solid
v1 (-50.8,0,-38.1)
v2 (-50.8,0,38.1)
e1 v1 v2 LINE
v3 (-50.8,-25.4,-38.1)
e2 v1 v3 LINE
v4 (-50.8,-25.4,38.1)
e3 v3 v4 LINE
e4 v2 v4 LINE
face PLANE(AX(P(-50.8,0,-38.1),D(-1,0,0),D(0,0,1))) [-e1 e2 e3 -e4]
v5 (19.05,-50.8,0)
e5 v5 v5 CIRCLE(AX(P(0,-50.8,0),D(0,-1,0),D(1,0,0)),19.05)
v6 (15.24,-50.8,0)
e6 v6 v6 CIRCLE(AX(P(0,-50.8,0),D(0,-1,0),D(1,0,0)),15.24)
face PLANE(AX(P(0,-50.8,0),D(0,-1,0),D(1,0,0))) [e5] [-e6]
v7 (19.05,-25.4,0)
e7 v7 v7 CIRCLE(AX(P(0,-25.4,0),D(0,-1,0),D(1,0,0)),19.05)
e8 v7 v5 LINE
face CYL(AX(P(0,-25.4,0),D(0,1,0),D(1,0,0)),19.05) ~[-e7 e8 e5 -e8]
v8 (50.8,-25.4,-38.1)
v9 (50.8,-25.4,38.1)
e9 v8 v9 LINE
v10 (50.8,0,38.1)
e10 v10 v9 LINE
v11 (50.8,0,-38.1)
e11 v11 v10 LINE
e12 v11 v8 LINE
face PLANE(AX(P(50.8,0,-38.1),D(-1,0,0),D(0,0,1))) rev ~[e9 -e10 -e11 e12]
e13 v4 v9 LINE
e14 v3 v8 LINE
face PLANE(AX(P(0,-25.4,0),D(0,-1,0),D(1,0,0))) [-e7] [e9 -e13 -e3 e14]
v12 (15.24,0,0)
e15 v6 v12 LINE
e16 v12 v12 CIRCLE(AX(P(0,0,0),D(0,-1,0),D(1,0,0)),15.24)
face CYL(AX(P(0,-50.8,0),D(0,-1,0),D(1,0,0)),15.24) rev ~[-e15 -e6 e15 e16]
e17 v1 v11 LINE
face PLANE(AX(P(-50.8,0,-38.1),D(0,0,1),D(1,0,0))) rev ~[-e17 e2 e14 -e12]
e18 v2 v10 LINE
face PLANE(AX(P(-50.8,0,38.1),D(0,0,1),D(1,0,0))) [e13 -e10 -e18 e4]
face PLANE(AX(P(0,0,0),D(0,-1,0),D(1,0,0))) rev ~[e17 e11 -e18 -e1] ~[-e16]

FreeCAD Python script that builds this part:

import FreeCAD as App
import Part
import Sketcher
from FreeCAD import Vector
Q = App.Units.Quantity


def add_polygon(sketch, points):
    """Adds a closed chain of lines whose ends are joined by coincident constraints."""
    first, n = sketch.GeometryCount, len(points)
    for a, b in zip(points, points[1:] + points[:1]):
        sketch.addGeometry(Part.LineSegment(App.Vector(*a, 0), App.Vector(*b, 0)), False)
    for i in range(n):
        sketch.addConstraint(Sketcher.Constraint("Coincident", first + i, 2, first + (i + 1) % n, 1))

doc = App.newDocument("Part")
body = doc.addObject("PartDesign::Body", "Body")

sketch1 = body.newObject("Sketcher::SketchObject", "Sketch")
sketch1.AttachmentSupport = (doc.getObject("XZ_Plane"), [""])
sketch1.MapMode = "FlatFace"
add_polygon(sketch1, [(-51, 38), (-51, -38), (51, -38), (51, 38)])
sketch1.addConstraint([
    Sketcher.Constraint("Vertical", 0),
    Sketcher.Constraint("Horizontal", 1),
    Sketcher.Constraint("Vertical", 2),
    Sketcher.Constraint("Horizontal", 3),
    Sketcher.Constraint("Symmetric", 0, 2, 2, 2, -1, 1),
    Sketcher.Constraint("DistanceX", 1, 1, 1, 2, Q("4 in")),
    Sketcher.Constraint("DistanceY", 0, 2, 0, 1, Q("3 in")),
])
pad1 = body.newObject("PartDesign::Pad", "Pad")
pad1.Profile = sketch1
pad1.Length = Q("1 in")

sketch2 = body.newObject("Sketcher::SketchObject", "Sketch001")
sketch2.AttachmentSupport = (doc.getObject("XZ_Plane"), [""])
sketch2.MapMode = "FlatFace"
sketch2.AttachmentOffset = App.Placement(Vector(0, 0, 1 * 25.4), App.Rotation())
sketch2.addGeometry(Part.Circle(Vector(0, 0, 0), Vector(0, 0, 1), 19), False)
sketch2.addConstraint([
    Sketcher.Constraint("Coincident", 0, 3, -1, 1),
    Sketcher.Constraint("Diameter", 0, Q("1.5 in")),
])
pad2 = body.newObject("PartDesign::Pad", "Pad001")
pad2.Profile = sketch2
pad2.Length = Q("1 in")

sketch3 = body.newObject("Sketcher::SketchObject", "Sketch002")
sketch3.AttachmentSupport = (doc.getObject("XZ_Plane"), [""])
sketch3.MapMode = "FlatFace"
sketch3.AttachmentOffset = App.Placement(Vector(0, 0, 2 * 25.4), App.Rotation())
sketch3.addGeometry(Part.Circle(Vector(0, 0, 0), Vector(0, 0, 1), 15), False)
sketch3.addConstraint([
    Sketcher.Constraint("Coincident", 0, 3, -1, 1),
    Sketcher.Constraint("Diameter", 0, Q("1.2 in")),
])
pocket1 = body.newObject("PartDesign::Pocket", "Pocket")
pocket1.Profile = sketch3
pocket1.Length = Q("3 in")

doc.recompute()
